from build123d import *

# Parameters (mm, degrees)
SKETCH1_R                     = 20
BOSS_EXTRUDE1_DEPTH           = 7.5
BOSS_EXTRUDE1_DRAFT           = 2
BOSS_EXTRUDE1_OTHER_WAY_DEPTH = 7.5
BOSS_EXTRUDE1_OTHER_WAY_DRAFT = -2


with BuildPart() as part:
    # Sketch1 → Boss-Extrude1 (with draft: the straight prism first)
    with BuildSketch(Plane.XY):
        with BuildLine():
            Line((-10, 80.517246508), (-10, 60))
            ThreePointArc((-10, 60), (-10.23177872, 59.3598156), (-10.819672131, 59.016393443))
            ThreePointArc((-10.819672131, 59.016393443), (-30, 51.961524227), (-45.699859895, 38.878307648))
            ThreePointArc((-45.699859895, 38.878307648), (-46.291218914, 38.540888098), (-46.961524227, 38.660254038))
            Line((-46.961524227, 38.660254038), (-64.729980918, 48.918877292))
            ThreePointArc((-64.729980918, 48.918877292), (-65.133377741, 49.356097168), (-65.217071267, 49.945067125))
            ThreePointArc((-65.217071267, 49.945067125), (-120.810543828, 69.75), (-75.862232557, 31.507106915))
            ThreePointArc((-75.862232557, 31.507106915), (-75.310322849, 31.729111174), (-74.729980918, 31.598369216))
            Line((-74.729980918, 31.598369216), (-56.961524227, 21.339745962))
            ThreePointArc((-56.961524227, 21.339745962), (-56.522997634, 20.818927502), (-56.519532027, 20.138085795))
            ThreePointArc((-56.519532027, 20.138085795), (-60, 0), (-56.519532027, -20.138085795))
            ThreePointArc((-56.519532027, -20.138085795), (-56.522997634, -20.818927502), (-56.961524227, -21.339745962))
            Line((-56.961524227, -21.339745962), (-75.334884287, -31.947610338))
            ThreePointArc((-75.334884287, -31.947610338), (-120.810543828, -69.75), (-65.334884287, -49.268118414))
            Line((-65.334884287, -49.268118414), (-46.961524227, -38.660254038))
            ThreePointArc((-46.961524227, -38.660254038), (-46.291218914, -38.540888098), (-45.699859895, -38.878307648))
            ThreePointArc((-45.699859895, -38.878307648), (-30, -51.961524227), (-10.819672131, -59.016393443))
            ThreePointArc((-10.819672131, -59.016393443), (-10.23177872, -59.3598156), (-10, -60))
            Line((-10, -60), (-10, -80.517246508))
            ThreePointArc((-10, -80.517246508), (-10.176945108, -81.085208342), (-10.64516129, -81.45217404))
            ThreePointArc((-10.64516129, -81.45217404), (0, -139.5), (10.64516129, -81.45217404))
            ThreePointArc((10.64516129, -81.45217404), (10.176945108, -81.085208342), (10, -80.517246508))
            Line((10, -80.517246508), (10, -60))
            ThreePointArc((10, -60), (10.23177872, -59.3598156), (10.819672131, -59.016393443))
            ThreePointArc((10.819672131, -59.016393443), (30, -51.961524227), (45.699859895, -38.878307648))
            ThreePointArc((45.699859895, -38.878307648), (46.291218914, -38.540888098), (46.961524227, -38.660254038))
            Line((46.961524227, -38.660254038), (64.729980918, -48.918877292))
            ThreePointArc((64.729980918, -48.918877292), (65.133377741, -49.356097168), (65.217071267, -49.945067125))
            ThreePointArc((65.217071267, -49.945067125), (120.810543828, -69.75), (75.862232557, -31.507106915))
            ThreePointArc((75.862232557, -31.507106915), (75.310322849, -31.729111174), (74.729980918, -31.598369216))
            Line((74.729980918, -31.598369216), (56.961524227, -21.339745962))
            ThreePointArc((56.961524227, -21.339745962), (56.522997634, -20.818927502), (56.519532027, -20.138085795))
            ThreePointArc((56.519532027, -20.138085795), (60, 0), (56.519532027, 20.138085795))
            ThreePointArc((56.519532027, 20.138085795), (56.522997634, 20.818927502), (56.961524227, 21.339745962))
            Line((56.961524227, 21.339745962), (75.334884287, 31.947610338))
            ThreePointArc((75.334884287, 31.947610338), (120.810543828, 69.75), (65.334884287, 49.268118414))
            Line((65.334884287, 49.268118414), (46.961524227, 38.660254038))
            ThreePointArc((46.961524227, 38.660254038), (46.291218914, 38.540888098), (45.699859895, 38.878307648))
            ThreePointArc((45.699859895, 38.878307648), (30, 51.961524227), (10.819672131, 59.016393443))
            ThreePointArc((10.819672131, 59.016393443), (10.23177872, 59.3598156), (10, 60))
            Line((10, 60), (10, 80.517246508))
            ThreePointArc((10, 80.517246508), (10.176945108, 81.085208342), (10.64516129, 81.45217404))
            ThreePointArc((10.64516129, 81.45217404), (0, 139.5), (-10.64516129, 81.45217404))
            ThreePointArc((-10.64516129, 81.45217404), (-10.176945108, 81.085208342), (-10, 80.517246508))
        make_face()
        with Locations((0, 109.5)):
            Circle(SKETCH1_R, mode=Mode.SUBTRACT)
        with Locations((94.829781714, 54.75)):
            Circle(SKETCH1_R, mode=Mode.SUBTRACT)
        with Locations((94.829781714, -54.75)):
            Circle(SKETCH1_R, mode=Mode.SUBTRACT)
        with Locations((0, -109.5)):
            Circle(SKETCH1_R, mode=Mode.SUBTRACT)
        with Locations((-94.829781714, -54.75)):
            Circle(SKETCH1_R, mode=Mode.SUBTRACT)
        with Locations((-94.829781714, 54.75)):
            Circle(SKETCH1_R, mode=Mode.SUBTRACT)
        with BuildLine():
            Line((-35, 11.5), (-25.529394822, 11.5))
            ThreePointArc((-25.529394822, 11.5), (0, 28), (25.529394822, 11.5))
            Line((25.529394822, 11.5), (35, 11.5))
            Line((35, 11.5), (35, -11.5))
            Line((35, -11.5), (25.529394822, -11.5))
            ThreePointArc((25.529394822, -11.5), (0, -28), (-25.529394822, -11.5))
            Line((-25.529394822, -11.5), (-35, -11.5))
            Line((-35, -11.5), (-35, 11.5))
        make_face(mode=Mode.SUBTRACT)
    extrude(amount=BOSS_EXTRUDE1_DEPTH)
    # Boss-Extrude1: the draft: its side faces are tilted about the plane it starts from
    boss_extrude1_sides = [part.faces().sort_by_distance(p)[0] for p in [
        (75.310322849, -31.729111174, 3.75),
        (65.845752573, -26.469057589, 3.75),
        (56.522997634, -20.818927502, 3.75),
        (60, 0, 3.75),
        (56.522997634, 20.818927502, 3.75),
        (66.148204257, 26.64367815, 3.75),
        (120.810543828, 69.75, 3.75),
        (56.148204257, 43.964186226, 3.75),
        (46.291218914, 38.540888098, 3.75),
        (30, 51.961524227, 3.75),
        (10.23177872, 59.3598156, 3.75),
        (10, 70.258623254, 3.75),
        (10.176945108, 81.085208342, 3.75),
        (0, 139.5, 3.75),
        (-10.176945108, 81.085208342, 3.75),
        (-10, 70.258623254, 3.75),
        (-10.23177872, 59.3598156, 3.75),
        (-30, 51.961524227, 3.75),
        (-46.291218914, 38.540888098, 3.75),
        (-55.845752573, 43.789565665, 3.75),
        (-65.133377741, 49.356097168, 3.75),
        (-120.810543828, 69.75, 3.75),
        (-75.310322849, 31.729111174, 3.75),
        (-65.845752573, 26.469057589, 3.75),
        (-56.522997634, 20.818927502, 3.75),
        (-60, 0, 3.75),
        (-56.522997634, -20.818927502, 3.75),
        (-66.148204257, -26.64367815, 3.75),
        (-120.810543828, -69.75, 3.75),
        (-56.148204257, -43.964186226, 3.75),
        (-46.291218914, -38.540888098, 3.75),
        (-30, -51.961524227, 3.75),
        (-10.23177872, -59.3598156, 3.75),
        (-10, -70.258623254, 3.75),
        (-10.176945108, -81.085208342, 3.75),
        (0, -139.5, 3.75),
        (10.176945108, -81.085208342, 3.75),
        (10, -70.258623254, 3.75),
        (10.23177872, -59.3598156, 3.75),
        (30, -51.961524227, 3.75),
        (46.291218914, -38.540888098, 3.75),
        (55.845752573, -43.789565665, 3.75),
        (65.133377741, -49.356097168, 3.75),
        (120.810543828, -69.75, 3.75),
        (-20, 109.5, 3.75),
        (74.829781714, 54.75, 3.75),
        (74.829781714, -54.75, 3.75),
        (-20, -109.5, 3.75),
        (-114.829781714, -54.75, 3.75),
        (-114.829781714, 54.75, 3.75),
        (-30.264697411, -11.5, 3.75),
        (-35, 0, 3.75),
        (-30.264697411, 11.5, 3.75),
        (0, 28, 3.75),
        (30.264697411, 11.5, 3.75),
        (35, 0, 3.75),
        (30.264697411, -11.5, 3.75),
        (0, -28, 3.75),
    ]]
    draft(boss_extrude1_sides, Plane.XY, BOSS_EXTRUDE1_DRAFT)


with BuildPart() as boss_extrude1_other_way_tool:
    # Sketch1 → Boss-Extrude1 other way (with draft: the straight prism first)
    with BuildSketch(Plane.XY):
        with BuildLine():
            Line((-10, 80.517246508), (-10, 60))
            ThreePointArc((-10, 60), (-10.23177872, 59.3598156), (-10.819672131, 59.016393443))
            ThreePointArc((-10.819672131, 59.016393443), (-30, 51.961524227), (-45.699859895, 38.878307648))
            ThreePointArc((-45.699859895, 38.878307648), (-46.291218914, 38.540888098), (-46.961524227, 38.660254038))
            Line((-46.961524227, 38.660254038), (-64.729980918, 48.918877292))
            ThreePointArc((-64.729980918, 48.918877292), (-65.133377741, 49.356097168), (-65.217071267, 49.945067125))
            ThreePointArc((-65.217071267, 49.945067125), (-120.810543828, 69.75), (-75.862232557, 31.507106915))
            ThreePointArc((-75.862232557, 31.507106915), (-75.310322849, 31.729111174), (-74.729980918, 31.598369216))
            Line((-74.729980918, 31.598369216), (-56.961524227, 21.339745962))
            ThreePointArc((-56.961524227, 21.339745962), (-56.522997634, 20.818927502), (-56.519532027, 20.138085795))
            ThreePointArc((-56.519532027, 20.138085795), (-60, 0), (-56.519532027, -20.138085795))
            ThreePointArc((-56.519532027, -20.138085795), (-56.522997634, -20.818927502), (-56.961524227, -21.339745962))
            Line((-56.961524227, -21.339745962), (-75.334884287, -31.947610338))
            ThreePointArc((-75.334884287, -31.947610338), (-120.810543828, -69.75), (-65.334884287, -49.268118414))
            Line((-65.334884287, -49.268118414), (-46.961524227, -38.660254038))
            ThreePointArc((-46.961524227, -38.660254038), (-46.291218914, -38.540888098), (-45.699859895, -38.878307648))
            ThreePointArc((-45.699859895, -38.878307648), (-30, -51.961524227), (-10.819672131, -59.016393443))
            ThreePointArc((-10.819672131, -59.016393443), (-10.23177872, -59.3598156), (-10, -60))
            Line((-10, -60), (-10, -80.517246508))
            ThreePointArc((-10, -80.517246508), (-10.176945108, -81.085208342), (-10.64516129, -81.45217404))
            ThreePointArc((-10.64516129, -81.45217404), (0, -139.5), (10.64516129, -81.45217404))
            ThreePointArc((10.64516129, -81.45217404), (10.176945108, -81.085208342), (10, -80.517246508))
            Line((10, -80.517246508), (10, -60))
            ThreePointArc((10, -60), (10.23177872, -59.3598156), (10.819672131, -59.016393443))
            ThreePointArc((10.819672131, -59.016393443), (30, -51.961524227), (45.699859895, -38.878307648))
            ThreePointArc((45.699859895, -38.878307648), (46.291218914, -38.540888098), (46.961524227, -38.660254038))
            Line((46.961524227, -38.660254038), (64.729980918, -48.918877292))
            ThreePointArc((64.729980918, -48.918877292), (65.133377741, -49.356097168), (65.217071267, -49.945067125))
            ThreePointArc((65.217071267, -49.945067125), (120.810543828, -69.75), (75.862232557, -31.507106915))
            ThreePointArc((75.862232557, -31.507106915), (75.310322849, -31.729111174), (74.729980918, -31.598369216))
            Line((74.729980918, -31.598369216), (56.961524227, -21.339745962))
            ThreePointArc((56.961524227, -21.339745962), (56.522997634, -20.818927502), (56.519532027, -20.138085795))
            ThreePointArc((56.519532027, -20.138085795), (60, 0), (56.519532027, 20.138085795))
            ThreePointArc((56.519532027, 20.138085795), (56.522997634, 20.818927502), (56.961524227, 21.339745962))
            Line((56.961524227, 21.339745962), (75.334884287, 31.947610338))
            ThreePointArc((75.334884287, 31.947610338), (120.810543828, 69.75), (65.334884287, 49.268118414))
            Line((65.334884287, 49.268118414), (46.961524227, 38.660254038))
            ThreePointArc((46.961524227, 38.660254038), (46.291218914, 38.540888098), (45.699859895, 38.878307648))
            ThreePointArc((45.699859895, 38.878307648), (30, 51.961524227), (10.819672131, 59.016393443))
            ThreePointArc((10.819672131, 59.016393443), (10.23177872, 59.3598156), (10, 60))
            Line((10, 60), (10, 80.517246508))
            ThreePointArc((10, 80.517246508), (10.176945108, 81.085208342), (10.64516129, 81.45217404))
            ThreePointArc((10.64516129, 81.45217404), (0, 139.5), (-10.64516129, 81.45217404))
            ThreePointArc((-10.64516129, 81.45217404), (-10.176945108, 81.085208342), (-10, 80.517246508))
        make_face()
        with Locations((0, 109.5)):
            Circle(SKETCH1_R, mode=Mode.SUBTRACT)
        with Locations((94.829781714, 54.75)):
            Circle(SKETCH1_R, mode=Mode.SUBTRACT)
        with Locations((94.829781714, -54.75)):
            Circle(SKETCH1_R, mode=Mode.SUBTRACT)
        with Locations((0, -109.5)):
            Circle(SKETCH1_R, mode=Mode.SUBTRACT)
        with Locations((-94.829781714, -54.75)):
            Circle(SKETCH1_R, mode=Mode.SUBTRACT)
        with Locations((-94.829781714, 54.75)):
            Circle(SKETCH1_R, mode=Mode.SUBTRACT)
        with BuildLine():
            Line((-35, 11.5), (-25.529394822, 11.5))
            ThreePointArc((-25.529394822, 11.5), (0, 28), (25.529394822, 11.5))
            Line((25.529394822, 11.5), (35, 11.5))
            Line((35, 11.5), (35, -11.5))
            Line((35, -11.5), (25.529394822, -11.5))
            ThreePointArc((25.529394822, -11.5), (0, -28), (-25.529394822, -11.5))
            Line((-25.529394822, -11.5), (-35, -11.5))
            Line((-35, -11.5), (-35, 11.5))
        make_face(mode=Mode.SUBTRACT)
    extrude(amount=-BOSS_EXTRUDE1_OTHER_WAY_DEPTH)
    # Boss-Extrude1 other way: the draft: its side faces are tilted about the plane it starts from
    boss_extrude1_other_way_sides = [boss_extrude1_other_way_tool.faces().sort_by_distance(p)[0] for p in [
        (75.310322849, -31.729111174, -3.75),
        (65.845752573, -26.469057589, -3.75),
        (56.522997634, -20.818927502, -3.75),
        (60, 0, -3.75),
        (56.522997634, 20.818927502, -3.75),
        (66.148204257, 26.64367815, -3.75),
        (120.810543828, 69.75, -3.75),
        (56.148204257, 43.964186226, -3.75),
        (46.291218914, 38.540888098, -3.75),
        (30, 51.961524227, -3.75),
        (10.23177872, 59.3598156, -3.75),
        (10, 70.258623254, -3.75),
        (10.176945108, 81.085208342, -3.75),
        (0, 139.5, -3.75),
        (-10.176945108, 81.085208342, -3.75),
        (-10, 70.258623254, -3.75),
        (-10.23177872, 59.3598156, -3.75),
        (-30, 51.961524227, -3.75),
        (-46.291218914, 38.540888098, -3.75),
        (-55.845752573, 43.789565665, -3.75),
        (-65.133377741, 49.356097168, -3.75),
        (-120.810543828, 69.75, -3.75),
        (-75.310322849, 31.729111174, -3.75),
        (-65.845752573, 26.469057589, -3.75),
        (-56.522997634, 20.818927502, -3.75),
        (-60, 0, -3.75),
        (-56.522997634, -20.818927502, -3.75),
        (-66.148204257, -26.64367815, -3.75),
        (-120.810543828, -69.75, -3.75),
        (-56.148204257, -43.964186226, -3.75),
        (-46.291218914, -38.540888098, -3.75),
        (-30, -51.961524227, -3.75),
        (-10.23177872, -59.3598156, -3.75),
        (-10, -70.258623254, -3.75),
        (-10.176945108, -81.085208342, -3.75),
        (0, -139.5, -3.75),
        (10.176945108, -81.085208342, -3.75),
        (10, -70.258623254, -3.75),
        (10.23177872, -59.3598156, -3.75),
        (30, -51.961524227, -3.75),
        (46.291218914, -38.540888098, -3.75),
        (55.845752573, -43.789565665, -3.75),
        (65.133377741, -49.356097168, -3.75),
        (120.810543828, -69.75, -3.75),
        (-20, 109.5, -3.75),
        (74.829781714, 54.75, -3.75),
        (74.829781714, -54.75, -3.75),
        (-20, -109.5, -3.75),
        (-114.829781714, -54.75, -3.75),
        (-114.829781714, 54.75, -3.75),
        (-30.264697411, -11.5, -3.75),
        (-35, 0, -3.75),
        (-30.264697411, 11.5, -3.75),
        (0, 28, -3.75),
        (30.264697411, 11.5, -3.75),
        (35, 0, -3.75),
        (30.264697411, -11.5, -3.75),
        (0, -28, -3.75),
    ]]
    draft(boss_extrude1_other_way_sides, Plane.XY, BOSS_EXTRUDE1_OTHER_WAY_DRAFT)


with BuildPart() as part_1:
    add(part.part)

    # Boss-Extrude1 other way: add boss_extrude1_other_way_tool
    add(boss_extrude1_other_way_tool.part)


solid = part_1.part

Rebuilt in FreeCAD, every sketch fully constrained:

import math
import FreeCAD as App
import Part
import Sketcher

V = App.Vector
Q = App.Units.Quantity


def faces_at(feature, points):
    """Names of the faces that lie closest to the given points."""
    faces = feature.Shape.Faces
    near = lambda p: min(range(len(faces)), key=lambda i: faces[i].distToShape(Part.Vertex(*p))[0])
    return sorted({f"Face{near(p) + 1}" for p in points})

doc = App.newDocument("Part")
params = doc.addObject("Spreadsheet::Sheet", "Params")
for row, (alias, value) in enumerate([
    ("sketch1_diameter", "40 mm"),
    ("sketch1_radius", "1 mm"),
    ("sketch1_radius2", "60 mm"),
    ("sketch1_radius3", "30 mm"),
    ("sketch1_radius4", "28 mm"),
    ("pad1_length", "7.5 mm"),
    ("draft_angle", "2 deg"),
    ("sketch2_diameter", "40 mm"),
    ("sketch2_radius", "1 mm"),
    ("sketch2_radius2", "60 mm"),
    ("sketch2_radius3", "30 mm"),
    ("sketch2_radius4", "28 mm"),
    ("pad2_length", "7.5 mm"),
    ("draft2_angle", "2 deg"),
], start=1):
    params.set(f"A{row}", alias)
    params.set(f"B{row}", "=" + value)
    params.setAlias(f"B{row}", alias)

body = doc.addObject("PartDesign::Body", "Body")

# Sketch on XY plane
sketch1 = body.newObject("Sketcher::SketchObject", "Sketch")
sketch1.AttachmentSupport = (doc.getObject("XY_Plane"), [""])
sketch1.MapMode = "FlatFace"
sketch1.addGeometry([
    Part.LineSegment(V(-10, 80.5, 0), V(-10, 60, 0)),  # 0
    Part.ArcOfCircle(Part.Circle(V(-11, 60, 0), V(0, 0, 1), 1), math.radians(-80), math.radians(0)),  # 1
    Part.ArcOfCircle(Part.Circle(V(0, 0, 0), V(0, 0, 1), 60), math.radians(100), math.radians(140)),  # 2
    Part.ArcOfCircle(Part.Circle(V(-46.5, 39.5, 0), V(0, 0, 1), 1), math.radians(-120), math.radians(-40)),  # 3
    Part.LineSegment(V(-47, 38.7, 0), V(-64.7, 48.9, 0)),  # 4
    Part.ArcOfCircle(Part.Circle(V(-64.2, 49.8, 0), V(0, 0, 1), 1), math.radians(171), math.radians(240)),  # 5
    Part.ArcOfCircle(Part.Circle(V(-94.8, 54.8, 0), V(0, 0, 1), 30), math.radians(-9), math.radians(309)),  # 6
    Part.ArcOfCircle(Part.Circle(V(-75.2, 30.7, 0), V(0, 0, 1), 1), math.radians(60), math.radians(129)),  # 7
    Part.LineSegment(V(-74.7, 31.6, 0), V(-57, 21.3, 0)),  # 8
    Part.ArcOfCircle(Part.Circle(V(-57.5, 20.5, 0), V(0, 0, 1), 1), math.radians(-20), math.radians(60)),  # 9
    Part.ArcOfCircle(Part.Circle(V(0, 0, 0), V(0, 0, 1), 60), math.radians(160), math.radians(200)),  # 10
    Part.ArcOfCircle(Part.Circle(V(-57.5, -20.5, 0), V(0, 0, 1), 1), math.radians(-60), math.radians(20)),  # 11
    Part.LineSegment(V(-57, -21.3, 0), V(-75.3, -31.9, 0)),  # 12
    Part.ArcOfCircle(Part.Circle(V(-94.8, -54.7, 0), V(0, 0, 1), 30), math.radians(49), math.radians(371)),  # 13
    Part.LineSegment(V(-65.3, -49.3, 0), V(-47, -38.7, 0)),  # 14
    Part.ArcOfCircle(Part.Circle(V(-46.5, -39.5, 0), V(0, 0, 1), 1), math.radians(40), math.radians(120)),  # 15
    Part.ArcOfCircle(Part.Circle(V(0, 0, 0), V(0, 0, 1), 60), math.radians(-140), math.radians(-100)),  # 16
    Part.ArcOfCircle(Part.Circle(V(-11, -60, 0), V(0, 0, 1), 1), math.radians(0), math.radians(80)),  # 17
    Part.LineSegment(V(-10, -60, 0), V(-10, -80.5, 0)),  # 18
    Part.ArcOfCircle(Part.Circle(V(-11, -80.5, 0), V(0, 0, 1), 1), math.radians(-69), math.radians(0)),  # 19
    Part.ArcOfCircle(Part.Circle(V(0, -109.5, 0), V(0, 0, 1), 30), math.radians(111), math.radians(429)),  # 20
    Part.ArcOfCircle(Part.Circle(V(11, -80.5, 0), V(0, 0, 1), 1), math.radians(180), math.radians(249)),  # 21
    Part.LineSegment(V(10, -80.5, 0), V(10, -60, 0)),  # 22
    Part.ArcOfCircle(Part.Circle(V(11, -60, 0), V(0, 0, 1), 1), math.radians(100), math.radians(180)),  # 23
    Part.ArcOfCircle(Part.Circle(V(0, 0, 0), V(0, 0, 1), 60), math.radians(-80), math.radians(-40)),  # 24
    Part.ArcOfCircle(Part.Circle(V(46.5, -39.5, 0), V(0, 0, 1), 1), math.radians(60), math.radians(140)),  # 25
    Part.LineSegment(V(47, -38.7, 0), V(64.7, -48.9, 0)),  # 26
    Part.ArcOfCircle(Part.Circle(V(64.2, -49.8, 0), V(0, 0, 1), 1), math.radians(-9), math.radians(60)),  # 27
    Part.ArcOfCircle(Part.Circle(V(94.8, -54.8, 0), V(0, 0, 1), 30), math.radians(171), math.radians(489)),  # 28
    Part.ArcOfCircle(Part.Circle(V(75.2, -30.7, 0), V(0, 0, 1), 1), math.radians(-120), math.radians(-51)),  # 29
    Part.LineSegment(V(74.7, -31.6, 0), V(57, -21.3, 0)),  # 30
    Part.ArcOfCircle(Part.Circle(V(57.5, -20.5, 0), V(0, 0, 1), 1), math.radians(160), math.radians(240)),  # 31
    Part.ArcOfCircle(Part.Circle(V(0, 0, 0), V(0, 0, 1), 60), math.radians(-20), math.radians(20)),  # 32
    Part.ArcOfCircle(Part.Circle(V(57.5, 20.5, 0), V(0, 0, 1), 1), math.radians(120), math.radians(200)),  # 33
    Part.LineSegment(V(57, 21.3, 0), V(75.3, 31.9, 0)),  # 34
    Part.ArcOfCircle(Part.Circle(V(94.8, 54.7, 0), V(0, 0, 1), 30), math.radians(-131), math.radians(191)),  # 35
    Part.LineSegment(V(65.3, 49.3, 0), V(47, 38.7, 0)),  # 36
    Part.ArcOfCircle(Part.Circle(V(46.5, 39.5, 0), V(0, 0, 1), 1), math.radians(-140), math.radians(-60)),  # 37
    Part.ArcOfCircle(Part.Circle(V(0, 0, 0), V(0, 0, 1), 60), math.radians(40), math.radians(80)),  # 38
    Part.ArcOfCircle(Part.Circle(V(11, 60, 0), V(0, 0, 1), 1), math.radians(180), math.radians(260)),  # 39
    Part.LineSegment(V(10, 60, 0), V(10, 80.5, 0)),  # 40
    Part.ArcOfCircle(Part.Circle(V(11, 80.5, 0), V(0, 0, 1), 1), math.radians(111), math.radians(180)),  # 41
    Part.ArcOfCircle(Part.Circle(V(0, 109.5, 0), V(0, 0, 1), 30), math.radians(-69), math.radians(249)),  # 42
    Part.ArcOfCircle(Part.Circle(V(-11, 80.5, 0), V(0, 0, 1), 1), math.radians(0), math.radians(69)),  # 43
    Part.Circle(V(0, -109.5, 0), V(0, 0, 1), 20),  # 44
    Part.Circle(V(-94.8, -54.8, 0), V(0, 0, 1), 20),  # 45
    Part.Circle(V(94.8, -54.8, 0), V(0, 0, 1), 20),  # 46
    Part.Circle(V(-94.8, 54.8, 0), V(0, 0, 1), 20),  # 47
    Part.LineSegment(V(-35, -11.5, 0), V(-35, 11.5, 0)),  # 48
    Part.LineSegment(V(-35, 11.5, 0), V(-25.5, 11.5, 0)),  # 49
    Part.ArcOfCircle(Part.Circle(V(0, 0, 0), V(0, 0, 1), 28), math.radians(24), math.radians(156)),  # 50
    Part.LineSegment(V(25.5, 11.5, 0), V(35, 11.5, 0)),  # 51
    Part.LineSegment(V(35, 11.5, 0), V(35, -11.5, 0)),  # 52
    Part.LineSegment(V(35, -11.5, 0), V(25.5, -11.5, 0)),  # 53
    Part.ArcOfCircle(Part.Circle(V(0, 0, 0), V(0, 0, 1), 28), math.radians(-156), math.radians(-24)),  # 54
    Part.LineSegment(V(-25.5, -11.5, 0), V(-35, -11.5, 0)),  # 55
    Part.Circle(V(0, 109.5, 0), V(0, 0, 1), 20),  # 56
    Part.Circle(V(94.8, 54.8, 0), V(0, 0, 1), 20),  # 57
], False)
sketch1.addConstraint([
    Sketcher.Constraint("Tangent", 0, 2, 1, 2),
    Sketcher.Constraint("Tangent", 1, 1, 2, 1),
    Sketcher.Constraint("Tangent", 2, 2, 3, 2),
    Sketcher.Constraint("Tangent", 3, 1, 4, 1),
    Sketcher.Constraint("Tangent", 4, 2, 5, 2),
    Sketcher.Constraint("Tangent", 5, 1, 6, 1),
    Sketcher.Constraint("Tangent", 6, 2, 7, 2),
    Sketcher.Constraint("Tangent", 7, 1, 8, 1),
    Sketcher.Constraint("Tangent", 8, 2, 9, 2),
    Sketcher.Constraint("Tangent", 9, 1, 10, 1),
    Sketcher.Constraint("Tangent", 10, 2, 11, 2),
    Sketcher.Constraint("Tangent", 11, 1, 12, 1),
    Sketcher.Constraint("Coincident", 12, 2, 13, 1),
    Sketcher.Constraint("Coincident", 13, 2, 14, 1),
    Sketcher.Constraint("Tangent", 14, 2, 15, 2),
    Sketcher.Constraint("Tangent", 15, 1, 16, 1),
    Sketcher.Constraint("Tangent", 16, 2, 17, 2),
    Sketcher.Constraint("Tangent", 17, 1, 18, 1),
    Sketcher.Constraint("Tangent", 18, 2, 19, 2),
    Sketcher.Constraint("Tangent", 19, 1, 20, 1),
    Sketcher.Constraint("Tangent", 20, 2, 21, 2),
    Sketcher.Constraint("Tangent", 21, 1, 22, 1),
    Sketcher.Constraint("Tangent", 22, 2, 23, 2),
    Sketcher.Constraint("Tangent", 23, 1, 24, 1),
    Sketcher.Constraint("Tangent", 24, 2, 25, 2),
    Sketcher.Constraint("Tangent", 25, 1, 26, 1),
    Sketcher.Constraint("Tangent", 26, 2, 27, 2),
    Sketcher.Constraint("Tangent", 27, 1, 28, 1),
    Sketcher.Constraint("Tangent", 28, 2, 29, 2),
    Sketcher.Constraint("Tangent", 29, 1, 30, 1),
    Sketcher.Constraint("Tangent", 30, 2, 31, 2),
    Sketcher.Constraint("Tangent", 31, 1, 32, 1),
    Sketcher.Constraint("Tangent", 32, 2, 33, 2),
    Sketcher.Constraint("Tangent", 33, 1, 34, 1),
    Sketcher.Constraint("Coincident", 34, 2, 35, 1),
    Sketcher.Constraint("Coincident", 35, 2, 36, 1),
    Sketcher.Constraint("Tangent", 36, 2, 37, 2),
    Sketcher.Constraint("Tangent", 37, 1, 38, 1),
    Sketcher.Constraint("Tangent", 38, 2, 39, 2),
    Sketcher.Constraint("Tangent", 39, 1, 40, 1),
    Sketcher.Constraint("Tangent", 40, 2, 41, 2),
    Sketcher.Constraint("Tangent", 41, 1, 42, 1),
    Sketcher.Constraint("Tangent", 42, 2, 43, 2),
    Sketcher.Constraint("Tangent", 43, 1, 0, 1),
    Sketcher.Constraint("Coincident", 48, 2, 49, 1),
    Sketcher.Constraint("Coincident", 49, 2, 50, 2),
    Sketcher.Constraint("Coincident", 50, 1, 51, 1),
    Sketcher.Constraint("Coincident", 51, 2, 52, 1),
    Sketcher.Constraint("Coincident", 52, 2, 53, 1),
    Sketcher.Constraint("Coincident", 53, 2, 54, 2),
    Sketcher.Constraint("Coincident", 54, 1, 55, 1),
    Sketcher.Constraint("Coincident", 55, 2, 48, 1),
    Sketcher.Constraint("Vertical", 0),
    Sketcher.Constraint("Vertical", 18),
    Sketcher.Constraint("Vertical", 22),
    Sketcher.Constraint("Vertical", 40),
    Sketcher.Constraint("Vertical", 48),
    Sketcher.Constraint("Horizontal", 49),
    Sketcher.Constraint("Horizontal", 51),
    Sketcher.Constraint("Vertical", 52),
    Sketcher.Constraint("Horizontal", 53),
    Sketcher.Constraint("Horizontal", 55),
    Sketcher.Constraint("Coincident", 2, 3, -1, 1),
    Sketcher.Constraint("Coincident", 10, 3, -1, 1),
    Sketcher.Constraint("Coincident", 16, 3, -1, 1),
    Sketcher.Constraint("Coincident", 24, 3, -1, 1),
    Sketcher.Constraint("Coincident", 32, 3, -1, 1),
    Sketcher.Constraint("Coincident", 38, 3, -1, 1),
    Sketcher.Constraint("Coincident", 50, 3, -1, 1),
    Sketcher.Constraint("Coincident", 54, 3, -1, 1),
    Sketcher.Constraint("Coincident", 44, 3, 20, 3),
    Sketcher.Constraint("Coincident", 45, 3, 13, 3),
    Sketcher.Constraint("Coincident", 46, 3, 28, 3),
    Sketcher.Constraint("Coincident", 47, 3, 6, 3),
    Sketcher.Constraint("Coincident", 56, 3, 42, 3),
    Sketcher.Constraint("Coincident", 57, 3, 35, 3),
    Sketcher.Constraint("Equal", 1, 3),
    Sketcher.Constraint("Equal", 3, 5),
    Sketcher.Constraint("Equal", 5, 7),
    Sketcher.Constraint("Equal", 7, 9),
    Sketcher.Constraint("Equal", 2, 10),
    Sketcher.Constraint("Equal", 9, 11),
    Sketcher.Constraint("Equal", 6, 13),
    Sketcher.Constraint("Equal", 11, 15),
    Sketcher.Constraint("Equal", 10, 16),
    Sketcher.Constraint("Equal", 15, 17),
    Sketcher.Constraint("Equal", 17, 19),
    Sketcher.Constraint("Equal", 13, 20),
    Sketcher.Constraint("Equal", 19, 21),
    Sketcher.Constraint("Equal", 21, 23),
    Sketcher.Constraint("Equal", 16, 24),
    Sketcher.Constraint("Equal", 23, 25),
    Sketcher.Constraint("Equal", 25, 27),
    Sketcher.Constraint("Equal", 20, 28),
    Sketcher.Constraint("Equal", 27, 29),
    Sketcher.Constraint("Equal", 29, 31),
    Sketcher.Constraint("Equal", 24, 32),
    Sketcher.Constraint("Equal", 31, 33),
    Sketcher.Constraint("Equal", 28, 35),
    Sketcher.Constraint("Equal", 33, 37),
    Sketcher.Constraint("Equal", 32, 38),
    Sketcher.Constraint("Equal", 37, 39),
    Sketcher.Constraint("Equal", 39, 41),
    Sketcher.Constraint("Equal", 35, 42),
    Sketcher.Constraint("Equal", 41, 43),
    Sketcher.Constraint("Equal", 44, 45),
    Sketcher.Constraint("Equal", 45, 46),
    Sketcher.Constraint("Equal", 46, 47),
    Sketcher.Constraint("Equal", 50, 54),
    Sketcher.Constraint("Equal", 47, 56),
    Sketcher.Constraint("Equal", 56, 57),
    Sketcher.Constraint("Symmetric", 5, 3, 27, 3, -1, 1),
    Sketcher.Constraint("Symmetric", 7, 3, 29, 3, -1, 1),
    Sketcher.Constraint("Symmetric", 13, 3, 35, 3, -1, 1),
    Sketcher.Constraint("Symmetric", 19, 3, 41, 3, -1, 1),
    Sketcher.Constraint("Symmetric", 21, 3, 43, 3, -1, 1),
    Sketcher.Constraint("Symmetric", 11, 1, 33, 1, -1, 1),
    Sketcher.Constraint("Symmetric", 14, 2, 36, 2, -1, 1),
    Sketcher.Constraint("Symmetric", 48, 2, 52, 2, -1, 1),
    Sketcher.Constraint("Symmetric", 19, 3, 21, 3, -2),
    Sketcher.Constraint("Symmetric", 13, 3, 28, 3, -2),
    Sketcher.Constraint("Symmetric", 14, 2, 25, 1, -2),
    Sketcher.Constraint("Symmetric", 11, 1, 30, 2, -2),
    Sketcher.Constraint("Parallel", 4, 8),
    Sketcher.Constraint("Parallel", 12, 14),
    Sketcher.Constraint("Parallel", 8, 26),
    Sketcher.Constraint("Horizontal", 49, 2, 50, 1),
    Sketcher.Constraint("Horizontal", 53, 2, 54, 1),
    Sketcher.Constraint("Equal", 4, 8),
    Sketcher.Constraint("Equal", 12, 14),
    Sketcher.Constraint("Diameter", 44, Q("40 mm")),
    Sketcher.Constraint("Radius", 1, Q("1 mm")),
    Sketcher.Constraint("Radius", 2, Q("60 mm")),
    Sketcher.Constraint("Radius", 6, Q("30 mm")),
    Sketcher.Constraint("Radius", 50, Q("28 mm")),
    Sketcher.Constraint("DistanceY", 48, 1, 48, 2, Q("23 mm")),
    Sketcher.Constraint("Angle", 4, Q("150 deg")),
    Sketcher.Constraint("DistanceX", 1, 3, -1, 1, Q("11 mm")),
    Sketcher.Constraint("DistanceX", 48, 2, -1, 1, Q("35 mm")),
    Sketcher.Constraint("DistanceY", 20, 3, -1, 1, Q("109.5 mm")),
    Sketcher.Constraint("DistanceY", -1, 1, 6, 3, Q("54.75 mm")),
    Sketcher.Constraint("Distance", 12, Q("21.215729 mm")),
])
sketch1.setExpression("Constraints[130]", "Params.sketch1_diameter")
sketch1.setExpression("Constraints[131]", "Params.sketch1_radius")
sketch1.setExpression("Constraints[132]", "Params.sketch1_radius2")
sketch1.setExpression("Constraints[133]", "Params.sketch1_radius3")
sketch1.setExpression("Constraints[134]", "Params.sketch1_radius4")
pad1 = body.newObject("PartDesign::Pad", "Pad")
pad1.Profile = sketch1
pad1.setExpression("Length", "Params.pad1_length")
doc.recompute()

draft = body.newObject("PartDesign::Draft", "Draft")
draft.Base = (pad1, faces_at(pad1, [
    (75.31, -31.729, 3.75),
    (65.846, -26.469, 3.75),
    (56.523, -20.819, 3.75),
    (60, 0, 3.75),
    (56.523, 20.819, 3.75),
    (66.148, 26.644, 3.75),
    (120.811, 69.75, 3.75),
    (56.148, 43.964, 3.75),
    (46.291, 38.541, 3.75),
    (30, 51.962, 3.75),
    (10.232, 59.36, 3.75),
    (10, 70.259, 3.75),
    (10.177, 81.085, 3.75),
    (0, 139.5, 3.75),
    (-10.177, 81.085, 3.75),
    (-10, 70.259, 3.75),
    (-10.232, 59.36, 3.75),
    (-30, 51.962, 3.75),
    (-46.291, 38.541, 3.75),
    (-55.846, 43.79, 3.75),
    (-65.133, 49.356, 3.75),
    (-120.811, 69.75, 3.75),
    (-75.31, 31.729, 3.75),
    (-65.846, 26.469, 3.75),
    (-56.523, 20.819, 3.75),
    (-60, 0, 3.75),
    (-56.523, -20.819, 3.75),
    (-66.148, -26.644, 3.75),
    (-120.811, -69.75, 3.75),
    (-56.148, -43.964, 3.75),
    (-46.291, -38.541, 3.75),
    (-30, -51.962, 3.75),
    (-10.232, -59.36, 3.75),
    (-10, -70.259, 3.75),
    (-10.177, -81.085, 3.75),
    (0, -139.5, 3.75),
    (10.177, -81.085, 3.75),
    (10, -70.259, 3.75),
    (10.232, -59.36, 3.75),
    (30, -51.962, 3.75),
    (46.291, -38.541, 3.75),
    (55.846, -43.79, 3.75),
    (65.133, -49.356, 3.75),
    (120.811, -69.75, 3.75),
    (-20, 109.5, 3.75),
    (74.83, 54.75, 3.75),
    (74.83, -54.75, 3.75),
    (-20, -109.5, 3.75),
    (-114.83, -54.75, 3.75),
    (-114.83, 54.75, 3.75),
    (-30.265, -11.5, 3.75),
    (-35, 0, 3.75),
    (-30.265, 11.5, 3.75),
    (0, 28, 3.75),
    (30.265, 11.5, 3.75),
    (35, 0, 3.75),
    (30.265, -11.5, 3.75),
    (0, -28, 3.75),
]))
draft.NeutralPlane = (doc.getObject("XY_Plane"), [""])
draft.setExpression("Angle", "Params.draft_angle")
draft.Reversed = False
body2 = doc.addObject("PartDesign::Body", "Body001")

# Sketch on XY plane
sketch2 = body2.newObject("Sketcher::SketchObject", "Sketch001")
sketch2.AttachmentSupport = (doc.getObject("XY_Plane001"), [""])
sketch2.MapMode = "FlatFace"
sketch2.addGeometry([
    Part.LineSegment(V(-10, 80.5, 0), V(-10, 60, 0)),  # 0
    Part.ArcOfCircle(Part.Circle(V(-11, 60, 0), V(0, 0, 1), 1), math.radians(-80), math.radians(0)),  # 1
    Part.ArcOfCircle(Part.Circle(V(0, 0, 0), V(0, 0, 1), 60), math.radians(100), math.radians(140)),  # 2
    Part.ArcOfCircle(Part.Circle(V(-46.5, 39.5, 0), V(0, 0, 1), 1), math.radians(-120), math.radians(-40)),  # 3
    Part.LineSegment(V(-47, 38.7, 0), V(-64.7, 48.9, 0)),  # 4
    Part.ArcOfCircle(Part.Circle(V(-64.2, 49.8, 0), V(0, 0, 1), 1), math.radians(171), math.radians(240)),  # 5
    Part.ArcOfCircle(Part.Circle(V(-94.8, 54.8, 0), V(0, 0, 1), 30), math.radians(-9), math.radians(309)),  # 6
    Part.ArcOfCircle(Part.Circle(V(-75.2, 30.7, 0), V(0, 0, 1), 1), math.radians(60), math.radians(129)),  # 7
    Part.LineSegment(V(-74.7, 31.6, 0), V(-57, 21.3, 0)),  # 8
    Part.ArcOfCircle(Part.Circle(V(-57.5, 20.5, 0), V(0, 0, 1), 1), math.radians(-20), math.radians(60)),  # 9
    Part.ArcOfCircle(Part.Circle(V(0, 0, 0), V(0, 0, 1), 60), math.radians(160), math.radians(200)),  # 10
    Part.ArcOfCircle(Part.Circle(V(-57.5, -20.5, 0), V(0, 0, 1), 1), math.radians(-60), math.radians(20)),  # 11
    Part.LineSegment(V(-57, -21.3, 0), V(-75.3, -31.9, 0)),  # 12
    Part.ArcOfCircle(Part.Circle(V(-94.8, -54.7, 0), V(0, 0, 1), 30), math.radians(49), math.radians(371)),  # 13
    Part.LineSegment(V(-65.3, -49.3, 0), V(-47, -38.7, 0)),  # 14
    Part.ArcOfCircle(Part.Circle(V(-46.5, -39.5, 0), V(0, 0, 1), 1), math.radians(40), math.radians(120)),  # 15
    Part.ArcOfCircle(Part.Circle(V(0, 0, 0), V(0, 0, 1), 60), math.radians(-140), math.radians(-100)),  # 16
    Part.ArcOfCircle(Part.Circle(V(-11, -60, 0), V(0, 0, 1), 1), math.radians(0), math.radians(80)),  # 17
    Part.LineSegment(V(-10, -60, 0), V(-10, -80.5, 0)),  # 18
    Part.ArcOfCircle(Part.Circle(V(-11, -80.5, 0), V(0, 0, 1), 1), math.radians(-69), math.radians(0)),  # 19
    Part.ArcOfCircle(Part.Circle(V(0, -109.5, 0), V(0, 0, 1), 30), math.radians(111), math.radians(429)),  # 20
    Part.ArcOfCircle(Part.Circle(V(11, -80.5, 0), V(0, 0, 1), 1), math.radians(180), math.radians(249)),  # 21
    Part.LineSegment(V(10, -80.5, 0), V(10, -60, 0)),  # 22
    Part.ArcOfCircle(Part.Circle(V(11, -60, 0), V(0, 0, 1), 1), math.radians(100), math.radians(180)),  # 23
    Part.ArcOfCircle(Part.Circle(V(0, 0, 0), V(0, 0, 1), 60), math.radians(-80), math.radians(-40)),  # 24
    Part.ArcOfCircle(Part.Circle(V(46.5, -39.5, 0), V(0, 0, 1), 1), math.radians(60), math.radians(140)),  # 25
    Part.LineSegment(V(47, -38.7, 0), V(64.7, -48.9, 0)),  # 26
    Part.ArcOfCircle(Part.Circle(V(64.2, -49.8, 0), V(0, 0, 1), 1), math.radians(-9), math.radians(60)),  # 27
    Part.ArcOfCircle(Part.Circle(V(94.8, -54.8, 0), V(0, 0, 1), 30), math.radians(171), math.radians(489)),  # 28
    Part.ArcOfCircle(Part.Circle(V(75.2, -30.7, 0), V(0, 0, 1), 1), math.radians(-120), math.radians(-51)),  # 29
    Part.LineSegment(V(74.7, -31.6, 0), V(57, -21.3, 0)),  # 30
    Part.ArcOfCircle(Part.Circle(V(57.5, -20.5, 0), V(0, 0, 1), 1), math.radians(160), math.radians(240)),  # 31
    Part.ArcOfCircle(Part.Circle(V(0, 0, 0), V(0, 0, 1), 60), math.radians(-20), math.radians(20)),  # 32
    Part.ArcOfCircle(Part.Circle(V(57.5, 20.5, 0), V(0, 0, 1), 1), math.radians(120), math.radians(200)),  # 33
    Part.LineSegment(V(57, 21.3, 0), V(75.3, 31.9, 0)),  # 34
    Part.ArcOfCircle(Part.Circle(V(94.8, 54.7, 0), V(0, 0, 1), 30), math.radians(-131), math.radians(191)),  # 35
    Part.LineSegment(V(65.3, 49.3, 0), V(47, 38.7, 0)),  # 36
    Part.ArcOfCircle(Part.Circle(V(46.5, 39.5, 0), V(0, 0, 1), 1), math.radians(-140), math.radians(-60)),  # 37
    Part.ArcOfCircle(Part.Circle(V(0, 0, 0), V(0, 0, 1), 60), math.radians(40), math.radians(80)),  # 38
    Part.ArcOfCircle(Part.Circle(V(11, 60, 0), V(0, 0, 1), 1), math.radians(180), math.radians(260)),  # 39
    Part.LineSegment(V(10, 60, 0), V(10, 80.5, 0)),  # 40
    Part.ArcOfCircle(Part.Circle(V(11, 80.5, 0), V(0, 0, 1), 1), math.radians(111), math.radians(180)),  # 41
    Part.ArcOfCircle(Part.Circle(V(0, 109.5, 0), V(0, 0, 1), 30), math.radians(-69), math.radians(249)),  # 42
    Part.ArcOfCircle(Part.Circle(V(-11, 80.5, 0), V(0, 0, 1), 1), math.radians(0), math.radians(69)),  # 43
    Part.Circle(V(0, -109.5, 0), V(0, 0, 1), 20),  # 44
    Part.Circle(V(-94.8, -54.8, 0), V(0, 0, 1), 20),  # 45
    Part.Circle(V(94.8, -54.8, 0), V(0, 0, 1), 20),  # 46
    Part.Circle(V(-94.8, 54.8, 0), V(0, 0, 1), 20),  # 47
    Part.LineSegment(V(-35, -11.5, 0), V(-35, 11.5, 0)),  # 48
    Part.LineSegment(V(-35, 11.5, 0), V(-25.5, 11.5, 0)),  # 49
    Part.ArcOfCircle(Part.Circle(V(0, 0, 0), V(0, 0, 1), 28), math.radians(24), math.radians(156)),  # 50
    Part.LineSegment(V(25.5, 11.5, 0), V(35, 11.5, 0)),  # 51
    Part.LineSegment(V(35, 11.5, 0), V(35, -11.5, 0)),  # 52
    Part.LineSegment(V(35, -11.5, 0), V(25.5, -11.5, 0)),  # 53
    Part.ArcOfCircle(Part.Circle(V(0, 0, 0), V(0, 0, 1), 28), math.radians(-156), math.radians(-24)),  # 54
    Part.LineSegment(V(-25.5, -11.5, 0), V(-35, -11.5, 0)),  # 55
    Part.Circle(V(0, 109.5, 0), V(0, 0, 1), 20),  # 56
    Part.Circle(V(94.8, 54.8, 0), V(0, 0, 1), 20),  # 57
], False)
sketch2.addConstraint([
    Sketcher.Constraint("Tangent", 0, 2, 1, 2),
    Sketcher.Constraint("Tangent", 1, 1, 2, 1),
    Sketcher.Constraint("Tangent", 2, 2, 3, 2),
    Sketcher.Constraint("Tangent", 3, 1, 4, 1),
    Sketcher.Constraint("Tangent", 4, 2, 5, 2),
    Sketcher.Constraint("Tangent", 5, 1, 6, 1),
    Sketcher.Constraint("Tangent", 6, 2, 7, 2),
    Sketcher.Constraint("Tangent", 7, 1, 8, 1),
    Sketcher.Constraint("Tangent", 8, 2, 9, 2),
    Sketcher.Constraint("Tangent", 9, 1, 10, 1),
    Sketcher.Constraint("Tangent", 10, 2, 11, 2),
    Sketcher.Constraint("Tangent", 11, 1, 12, 1),
    Sketcher.Constraint("Coincident", 12, 2, 13, 1),
    Sketcher.Constraint("Coincident", 13, 2, 14, 1),
    Sketcher.Constraint("Tangent", 14, 2, 15, 2),
    Sketcher.Constraint("Tangent", 15, 1, 16, 1),
    Sketcher.Constraint("Tangent", 16, 2, 17, 2),
    Sketcher.Constraint("Tangent", 17, 1, 18, 1),
    Sketcher.Constraint("Tangent", 18, 2, 19, 2),
    Sketcher.Constraint("Tangent", 19, 1, 20, 1),
    Sketcher.Constraint("Tangent", 20, 2, 21, 2),
    Sketcher.Constraint("Tangent", 21, 1, 22, 1),
    Sketcher.Constraint("Tangent", 22, 2, 23, 2),
    Sketcher.Constraint("Tangent", 23, 1, 24, 1),
    Sketcher.Constraint("Tangent", 24, 2, 25, 2),
    Sketcher.Constraint("Tangent", 25, 1, 26, 1),
    Sketcher.Constraint("Tangent", 26, 2, 27, 2),
    Sketcher.Constraint("Tangent", 27, 1, 28, 1),
    Sketcher.Constraint("Tangent", 28, 2, 29, 2),
    Sketcher.Constraint("Tangent", 29, 1, 30, 1),
    Sketcher.Constraint("Tangent", 30, 2, 31, 2),
    Sketcher.Constraint("Tangent", 31, 1, 32, 1),
    Sketcher.Constraint("Tangent", 32, 2, 33, 2),
    Sketcher.Constraint("Tangent", 33, 1, 34, 1),
    Sketcher.Constraint("Coincident", 34, 2, 35, 1),
    Sketcher.Constraint("Coincident", 35, 2, 36, 1),
    Sketcher.Constraint("Tangent", 36, 2, 37, 2),
    Sketcher.Constraint("Tangent", 37, 1, 38, 1),
    Sketcher.Constraint("Tangent", 38, 2, 39, 2),
    Sketcher.Constraint("Tangent", 39, 1, 40, 1),
    Sketcher.Constraint("Tangent", 40, 2, 41, 2),
    Sketcher.Constraint("Tangent", 41, 1, 42, 1),
    Sketcher.Constraint("Tangent", 42, 2, 43, 2),
    Sketcher.Constraint("Tangent", 43, 1, 0, 1),
    Sketcher.Constraint("Coincident", 48, 2, 49, 1),
    Sketcher.Constraint("Coincident", 49, 2, 50, 2),
    Sketcher.Constraint("Coincident", 50, 1, 51, 1),
    Sketcher.Constraint("Coincident", 51, 2, 52, 1),
    Sketcher.Constraint("Coincident", 52, 2, 53, 1),
    Sketcher.Constraint("Coincident", 53, 2, 54, 2),
    Sketcher.Constraint("Coincident", 54, 1, 55, 1),
    Sketcher.Constraint("Coincident", 55, 2, 48, 1),
    Sketcher.Constraint("Vertical", 0),
    Sketcher.Constraint("Vertical", 18),
    Sketcher.Constraint("Vertical", 22),
    Sketcher.Constraint("Vertical", 40),
    Sketcher.Constraint("Vertical", 48),
    Sketcher.Constraint("Horizontal", 49),
    Sketcher.Constraint("Horizontal", 51),
    Sketcher.Constraint("Vertical", 52),
    Sketcher.Constraint("Horizontal", 53),
    Sketcher.Constraint("Horizontal", 55),
    Sketcher.Constraint("Coincident", 2, 3, -1, 1),
    Sketcher.Constraint("Coincident", 10, 3, -1, 1),
    Sketcher.Constraint("Coincident", 16, 3, -1, 1),
    Sketcher.Constraint("Coincident", 24, 3, -1, 1),
    Sketcher.Constraint("Coincident", 32, 3, -1, 1),
    Sketcher.Constraint("Coincident", 38, 3, -1, 1),
    Sketcher.Constraint("Coincident", 50, 3, -1, 1),
    Sketcher.Constraint("Coincident", 54, 3, -1, 1),
    Sketcher.Constraint("Coincident", 44, 3, 20, 3),
    Sketcher.Constraint("Coincident", 45, 3, 13, 3),
    Sketcher.Constraint("Coincident", 46, 3, 28, 3),
    Sketcher.Constraint("Coincident", 47, 3, 6, 3),
    Sketcher.Constraint("Coincident", 56, 3, 42, 3),
    Sketcher.Constraint("Coincident", 57, 3, 35, 3),
    Sketcher.Constraint("Equal", 1, 3),
    Sketcher.Constraint("Equal", 3, 5),
    Sketcher.Constraint("Equal", 5, 7),
    Sketcher.Constraint("Equal", 7, 9),
    Sketcher.Constraint("Equal", 2, 10),
    Sketcher.Constraint("Equal", 9, 11),
    Sketcher.Constraint("Equal", 6, 13),
    Sketcher.Constraint("Equal", 11, 15),
    Sketcher.Constraint("Equal", 10, 16),
    Sketcher.Constraint("Equal", 15, 17),
    Sketcher.Constraint("Equal", 17, 19),
    Sketcher.Constraint("Equal", 13, 20),
    Sketcher.Constraint("Equal", 19, 21),
    Sketcher.Constraint("Equal", 21, 23),
    Sketcher.Constraint("Equal", 16, 24),
    Sketcher.Constraint("Equal", 23, 25),
    Sketcher.Constraint("Equal", 25, 27),
    Sketcher.Constraint("Equal", 20, 28),
    Sketcher.Constraint("Equal", 27, 29),
    Sketcher.Constraint("Equal", 29, 31),
    Sketcher.Constraint("Equal", 24, 32),
    Sketcher.Constraint("Equal", 31, 33),
    Sketcher.Constraint("Equal", 28, 35),
    Sketcher.Constraint("Equal", 33, 37),
    Sketcher.Constraint("Equal", 32, 38),
    Sketcher.Constraint("Equal", 37, 39),
    Sketcher.Constraint("Equal", 39, 41),
    Sketcher.Constraint("Equal", 35, 42),
    Sketcher.Constraint("Equal", 41, 43),
    Sketcher.Constraint("Equal", 44, 45),
    Sketcher.Constraint("Equal", 45, 46),
    Sketcher.Constraint("Equal", 46, 47),
    Sketcher.Constraint("Equal", 50, 54),
    Sketcher.Constraint("Equal", 47, 56),
    Sketcher.Constraint("Equal", 56, 57),
    Sketcher.Constraint("Symmetric", 5, 3, 27, 3, -1, 1),
    Sketcher.Constraint("Symmetric", 7, 3, 29, 3, -1, 1),
    Sketcher.Constraint("Symmetric", 13, 3, 35, 3, -1, 1),
    Sketcher.Constraint("Symmetric", 19, 3, 41, 3, -1, 1),
    Sketcher.Constraint("Symmetric", 21, 3, 43, 3, -1, 1),
    Sketcher.Constraint("Symmetric", 11, 1, 33, 1, -1, 1),
    Sketcher.Constraint("Symmetric", 14, 2, 36, 2, -1, 1),
    Sketcher.Constraint("Symmetric", 48, 2, 52, 2, -1, 1),
    Sketcher.Constraint("Symmetric", 19, 3, 21, 3, -2),
    Sketcher.Constraint("Symmetric", 13, 3, 28, 3, -2),
    Sketcher.Constraint("Symmetric", 14, 2, 25, 1, -2),
    Sketcher.Constraint("Symmetric", 11, 1, 30, 2, -2),
    Sketcher.Constraint("Parallel", 4, 8),
    Sketcher.Constraint("Parallel", 12, 14),
    Sketcher.Constraint("Parallel", 8, 26),
    Sketcher.Constraint("Horizontal", 49, 2, 50, 1),
    Sketcher.Constraint("Horizontal", 53, 2, 54, 1),
    Sketcher.Constraint("Equal", 4, 8),
    Sketcher.Constraint("Equal", 12, 14),
    Sketcher.Constraint("Diameter", 44, Q("40 mm")),
    Sketcher.Constraint("Radius", 1, Q("1 mm")),
    Sketcher.Constraint("Radius", 2, Q("60 mm")),
    Sketcher.Constraint("Radius", 6, Q("30 mm")),
    Sketcher.Constraint("Radius", 50, Q("28 mm")),
    Sketcher.Constraint("DistanceY", 48, 1, 48, 2, Q("23 mm")),
    Sketcher.Constraint("Angle", 4, Q("150 deg")),
    Sketcher.Constraint("DistanceX", 1, 3, -1, 1, Q("11 mm")),
    Sketcher.Constraint("DistanceX", 48, 2, -1, 1, Q("35 mm")),
    Sketcher.Constraint("DistanceY", 20, 3, -1, 1, Q("109.5 mm")),
    Sketcher.Constraint("DistanceY", -1, 1, 6, 3, Q("54.75 mm")),
    Sketcher.Constraint("Distance", 12, Q("21.215729 mm")),
])
sketch2.setExpression("Constraints[130]", "Params.sketch2_diameter")
sketch2.setExpression("Constraints[131]", "Params.sketch2_radius")
sketch2.setExpression("Constraints[132]", "Params.sketch2_radius2")
sketch2.setExpression("Constraints[133]", "Params.sketch2_radius3")
sketch2.setExpression("Constraints[134]", "Params.sketch2_radius4")
pad2 = body2.newObject("PartDesign::Pad", "Pad001")
pad2.Profile = sketch2
pad2.setExpression("Length", "Params.pad2_length")
pad2.Reversed = True
doc.recompute()

draft2 = body2.newObject("PartDesign::Draft", "Draft001")
draft2.Base = (pad2, faces_at(pad2, [
    (75.31, -31.729, -3.75),
    (65.846, -26.469, -3.75),
    (56.523, -20.819, -3.75),
    (60, 0, -3.75),
    (56.523, 20.819, -3.75),
    (66.148, 26.644, -3.75),
    (120.811, 69.75, -3.75),
    (56.148, 43.964, -3.75),
    (46.291, 38.541, -3.75),
    (30, 51.962, -3.75),
    (10.232, 59.36, -3.75),
    (10, 70.259, -3.75),
    (10.177, 81.085, -3.75),
    (0, 139.5, -3.75),
    (-10.177, 81.085, -3.75),
    (-10, 70.259, -3.75),
    (-10.232, 59.36, -3.75),
    (-30, 51.962, -3.75),
    (-46.291, 38.541, -3.75),
    (-55.846, 43.79, -3.75),
    (-65.133, 49.356, -3.75),
    (-120.811, 69.75, -3.75),
    (-75.31, 31.729, -3.75),
    (-65.846, 26.469, -3.75),
    (-56.523, 20.819, -3.75),
    (-60, 0, -3.75),
    (-56.523, -20.819, -3.75),
    (-66.148, -26.644, -3.75),
    (-120.811, -69.75, -3.75),
    (-56.148, -43.964, -3.75),
    (-46.291, -38.541, -3.75),
    (-30, -51.962, -3.75),
    (-10.232, -59.36, -3.75),
    (-10, -70.259, -3.75),
    (-10.177, -81.085, -3.75),
    (0, -139.5, -3.75),
    (10.177, -81.085, -3.75),
    (10, -70.259, -3.75),
    (10.232, -59.36, -3.75),
    (30, -51.962, -3.75),
    (46.291, -38.541, -3.75),
    (55.846, -43.79, -3.75),
    (65.133, -49.356, -3.75),
    (120.811, -69.75, -3.75),
    (-20, 109.5, -3.75),
    (74.83, 54.75, -3.75),
    (74.83, -54.75, -3.75),
    (-20, -109.5, -3.75),
    (-114.83, -54.75, -3.75),
    (-114.83, 54.75, -3.75),
    (-30.265, -11.5, -3.75),
    (-35, 0, -3.75),
    (-30.265, 11.5, -3.75),
    (0, 28, -3.75),
    (30.265, 11.5, -3.75),
    (35, 0, -3.75),
    (30.265, -11.5, -3.75),
    (0, -28, -3.75),
]))
draft2.NeutralPlane = (doc.getObject("XY_Plane001"), [""])
draft2.setExpression("Angle", "Params.draft2_angle")
draft2.Reversed = True
doc.recompute()

boolean = body.newObject("PartDesign::Boolean", "Boolean")
boolean.Type = "Fuse"
boolean.addObjects([body2])

doc.recompute()
